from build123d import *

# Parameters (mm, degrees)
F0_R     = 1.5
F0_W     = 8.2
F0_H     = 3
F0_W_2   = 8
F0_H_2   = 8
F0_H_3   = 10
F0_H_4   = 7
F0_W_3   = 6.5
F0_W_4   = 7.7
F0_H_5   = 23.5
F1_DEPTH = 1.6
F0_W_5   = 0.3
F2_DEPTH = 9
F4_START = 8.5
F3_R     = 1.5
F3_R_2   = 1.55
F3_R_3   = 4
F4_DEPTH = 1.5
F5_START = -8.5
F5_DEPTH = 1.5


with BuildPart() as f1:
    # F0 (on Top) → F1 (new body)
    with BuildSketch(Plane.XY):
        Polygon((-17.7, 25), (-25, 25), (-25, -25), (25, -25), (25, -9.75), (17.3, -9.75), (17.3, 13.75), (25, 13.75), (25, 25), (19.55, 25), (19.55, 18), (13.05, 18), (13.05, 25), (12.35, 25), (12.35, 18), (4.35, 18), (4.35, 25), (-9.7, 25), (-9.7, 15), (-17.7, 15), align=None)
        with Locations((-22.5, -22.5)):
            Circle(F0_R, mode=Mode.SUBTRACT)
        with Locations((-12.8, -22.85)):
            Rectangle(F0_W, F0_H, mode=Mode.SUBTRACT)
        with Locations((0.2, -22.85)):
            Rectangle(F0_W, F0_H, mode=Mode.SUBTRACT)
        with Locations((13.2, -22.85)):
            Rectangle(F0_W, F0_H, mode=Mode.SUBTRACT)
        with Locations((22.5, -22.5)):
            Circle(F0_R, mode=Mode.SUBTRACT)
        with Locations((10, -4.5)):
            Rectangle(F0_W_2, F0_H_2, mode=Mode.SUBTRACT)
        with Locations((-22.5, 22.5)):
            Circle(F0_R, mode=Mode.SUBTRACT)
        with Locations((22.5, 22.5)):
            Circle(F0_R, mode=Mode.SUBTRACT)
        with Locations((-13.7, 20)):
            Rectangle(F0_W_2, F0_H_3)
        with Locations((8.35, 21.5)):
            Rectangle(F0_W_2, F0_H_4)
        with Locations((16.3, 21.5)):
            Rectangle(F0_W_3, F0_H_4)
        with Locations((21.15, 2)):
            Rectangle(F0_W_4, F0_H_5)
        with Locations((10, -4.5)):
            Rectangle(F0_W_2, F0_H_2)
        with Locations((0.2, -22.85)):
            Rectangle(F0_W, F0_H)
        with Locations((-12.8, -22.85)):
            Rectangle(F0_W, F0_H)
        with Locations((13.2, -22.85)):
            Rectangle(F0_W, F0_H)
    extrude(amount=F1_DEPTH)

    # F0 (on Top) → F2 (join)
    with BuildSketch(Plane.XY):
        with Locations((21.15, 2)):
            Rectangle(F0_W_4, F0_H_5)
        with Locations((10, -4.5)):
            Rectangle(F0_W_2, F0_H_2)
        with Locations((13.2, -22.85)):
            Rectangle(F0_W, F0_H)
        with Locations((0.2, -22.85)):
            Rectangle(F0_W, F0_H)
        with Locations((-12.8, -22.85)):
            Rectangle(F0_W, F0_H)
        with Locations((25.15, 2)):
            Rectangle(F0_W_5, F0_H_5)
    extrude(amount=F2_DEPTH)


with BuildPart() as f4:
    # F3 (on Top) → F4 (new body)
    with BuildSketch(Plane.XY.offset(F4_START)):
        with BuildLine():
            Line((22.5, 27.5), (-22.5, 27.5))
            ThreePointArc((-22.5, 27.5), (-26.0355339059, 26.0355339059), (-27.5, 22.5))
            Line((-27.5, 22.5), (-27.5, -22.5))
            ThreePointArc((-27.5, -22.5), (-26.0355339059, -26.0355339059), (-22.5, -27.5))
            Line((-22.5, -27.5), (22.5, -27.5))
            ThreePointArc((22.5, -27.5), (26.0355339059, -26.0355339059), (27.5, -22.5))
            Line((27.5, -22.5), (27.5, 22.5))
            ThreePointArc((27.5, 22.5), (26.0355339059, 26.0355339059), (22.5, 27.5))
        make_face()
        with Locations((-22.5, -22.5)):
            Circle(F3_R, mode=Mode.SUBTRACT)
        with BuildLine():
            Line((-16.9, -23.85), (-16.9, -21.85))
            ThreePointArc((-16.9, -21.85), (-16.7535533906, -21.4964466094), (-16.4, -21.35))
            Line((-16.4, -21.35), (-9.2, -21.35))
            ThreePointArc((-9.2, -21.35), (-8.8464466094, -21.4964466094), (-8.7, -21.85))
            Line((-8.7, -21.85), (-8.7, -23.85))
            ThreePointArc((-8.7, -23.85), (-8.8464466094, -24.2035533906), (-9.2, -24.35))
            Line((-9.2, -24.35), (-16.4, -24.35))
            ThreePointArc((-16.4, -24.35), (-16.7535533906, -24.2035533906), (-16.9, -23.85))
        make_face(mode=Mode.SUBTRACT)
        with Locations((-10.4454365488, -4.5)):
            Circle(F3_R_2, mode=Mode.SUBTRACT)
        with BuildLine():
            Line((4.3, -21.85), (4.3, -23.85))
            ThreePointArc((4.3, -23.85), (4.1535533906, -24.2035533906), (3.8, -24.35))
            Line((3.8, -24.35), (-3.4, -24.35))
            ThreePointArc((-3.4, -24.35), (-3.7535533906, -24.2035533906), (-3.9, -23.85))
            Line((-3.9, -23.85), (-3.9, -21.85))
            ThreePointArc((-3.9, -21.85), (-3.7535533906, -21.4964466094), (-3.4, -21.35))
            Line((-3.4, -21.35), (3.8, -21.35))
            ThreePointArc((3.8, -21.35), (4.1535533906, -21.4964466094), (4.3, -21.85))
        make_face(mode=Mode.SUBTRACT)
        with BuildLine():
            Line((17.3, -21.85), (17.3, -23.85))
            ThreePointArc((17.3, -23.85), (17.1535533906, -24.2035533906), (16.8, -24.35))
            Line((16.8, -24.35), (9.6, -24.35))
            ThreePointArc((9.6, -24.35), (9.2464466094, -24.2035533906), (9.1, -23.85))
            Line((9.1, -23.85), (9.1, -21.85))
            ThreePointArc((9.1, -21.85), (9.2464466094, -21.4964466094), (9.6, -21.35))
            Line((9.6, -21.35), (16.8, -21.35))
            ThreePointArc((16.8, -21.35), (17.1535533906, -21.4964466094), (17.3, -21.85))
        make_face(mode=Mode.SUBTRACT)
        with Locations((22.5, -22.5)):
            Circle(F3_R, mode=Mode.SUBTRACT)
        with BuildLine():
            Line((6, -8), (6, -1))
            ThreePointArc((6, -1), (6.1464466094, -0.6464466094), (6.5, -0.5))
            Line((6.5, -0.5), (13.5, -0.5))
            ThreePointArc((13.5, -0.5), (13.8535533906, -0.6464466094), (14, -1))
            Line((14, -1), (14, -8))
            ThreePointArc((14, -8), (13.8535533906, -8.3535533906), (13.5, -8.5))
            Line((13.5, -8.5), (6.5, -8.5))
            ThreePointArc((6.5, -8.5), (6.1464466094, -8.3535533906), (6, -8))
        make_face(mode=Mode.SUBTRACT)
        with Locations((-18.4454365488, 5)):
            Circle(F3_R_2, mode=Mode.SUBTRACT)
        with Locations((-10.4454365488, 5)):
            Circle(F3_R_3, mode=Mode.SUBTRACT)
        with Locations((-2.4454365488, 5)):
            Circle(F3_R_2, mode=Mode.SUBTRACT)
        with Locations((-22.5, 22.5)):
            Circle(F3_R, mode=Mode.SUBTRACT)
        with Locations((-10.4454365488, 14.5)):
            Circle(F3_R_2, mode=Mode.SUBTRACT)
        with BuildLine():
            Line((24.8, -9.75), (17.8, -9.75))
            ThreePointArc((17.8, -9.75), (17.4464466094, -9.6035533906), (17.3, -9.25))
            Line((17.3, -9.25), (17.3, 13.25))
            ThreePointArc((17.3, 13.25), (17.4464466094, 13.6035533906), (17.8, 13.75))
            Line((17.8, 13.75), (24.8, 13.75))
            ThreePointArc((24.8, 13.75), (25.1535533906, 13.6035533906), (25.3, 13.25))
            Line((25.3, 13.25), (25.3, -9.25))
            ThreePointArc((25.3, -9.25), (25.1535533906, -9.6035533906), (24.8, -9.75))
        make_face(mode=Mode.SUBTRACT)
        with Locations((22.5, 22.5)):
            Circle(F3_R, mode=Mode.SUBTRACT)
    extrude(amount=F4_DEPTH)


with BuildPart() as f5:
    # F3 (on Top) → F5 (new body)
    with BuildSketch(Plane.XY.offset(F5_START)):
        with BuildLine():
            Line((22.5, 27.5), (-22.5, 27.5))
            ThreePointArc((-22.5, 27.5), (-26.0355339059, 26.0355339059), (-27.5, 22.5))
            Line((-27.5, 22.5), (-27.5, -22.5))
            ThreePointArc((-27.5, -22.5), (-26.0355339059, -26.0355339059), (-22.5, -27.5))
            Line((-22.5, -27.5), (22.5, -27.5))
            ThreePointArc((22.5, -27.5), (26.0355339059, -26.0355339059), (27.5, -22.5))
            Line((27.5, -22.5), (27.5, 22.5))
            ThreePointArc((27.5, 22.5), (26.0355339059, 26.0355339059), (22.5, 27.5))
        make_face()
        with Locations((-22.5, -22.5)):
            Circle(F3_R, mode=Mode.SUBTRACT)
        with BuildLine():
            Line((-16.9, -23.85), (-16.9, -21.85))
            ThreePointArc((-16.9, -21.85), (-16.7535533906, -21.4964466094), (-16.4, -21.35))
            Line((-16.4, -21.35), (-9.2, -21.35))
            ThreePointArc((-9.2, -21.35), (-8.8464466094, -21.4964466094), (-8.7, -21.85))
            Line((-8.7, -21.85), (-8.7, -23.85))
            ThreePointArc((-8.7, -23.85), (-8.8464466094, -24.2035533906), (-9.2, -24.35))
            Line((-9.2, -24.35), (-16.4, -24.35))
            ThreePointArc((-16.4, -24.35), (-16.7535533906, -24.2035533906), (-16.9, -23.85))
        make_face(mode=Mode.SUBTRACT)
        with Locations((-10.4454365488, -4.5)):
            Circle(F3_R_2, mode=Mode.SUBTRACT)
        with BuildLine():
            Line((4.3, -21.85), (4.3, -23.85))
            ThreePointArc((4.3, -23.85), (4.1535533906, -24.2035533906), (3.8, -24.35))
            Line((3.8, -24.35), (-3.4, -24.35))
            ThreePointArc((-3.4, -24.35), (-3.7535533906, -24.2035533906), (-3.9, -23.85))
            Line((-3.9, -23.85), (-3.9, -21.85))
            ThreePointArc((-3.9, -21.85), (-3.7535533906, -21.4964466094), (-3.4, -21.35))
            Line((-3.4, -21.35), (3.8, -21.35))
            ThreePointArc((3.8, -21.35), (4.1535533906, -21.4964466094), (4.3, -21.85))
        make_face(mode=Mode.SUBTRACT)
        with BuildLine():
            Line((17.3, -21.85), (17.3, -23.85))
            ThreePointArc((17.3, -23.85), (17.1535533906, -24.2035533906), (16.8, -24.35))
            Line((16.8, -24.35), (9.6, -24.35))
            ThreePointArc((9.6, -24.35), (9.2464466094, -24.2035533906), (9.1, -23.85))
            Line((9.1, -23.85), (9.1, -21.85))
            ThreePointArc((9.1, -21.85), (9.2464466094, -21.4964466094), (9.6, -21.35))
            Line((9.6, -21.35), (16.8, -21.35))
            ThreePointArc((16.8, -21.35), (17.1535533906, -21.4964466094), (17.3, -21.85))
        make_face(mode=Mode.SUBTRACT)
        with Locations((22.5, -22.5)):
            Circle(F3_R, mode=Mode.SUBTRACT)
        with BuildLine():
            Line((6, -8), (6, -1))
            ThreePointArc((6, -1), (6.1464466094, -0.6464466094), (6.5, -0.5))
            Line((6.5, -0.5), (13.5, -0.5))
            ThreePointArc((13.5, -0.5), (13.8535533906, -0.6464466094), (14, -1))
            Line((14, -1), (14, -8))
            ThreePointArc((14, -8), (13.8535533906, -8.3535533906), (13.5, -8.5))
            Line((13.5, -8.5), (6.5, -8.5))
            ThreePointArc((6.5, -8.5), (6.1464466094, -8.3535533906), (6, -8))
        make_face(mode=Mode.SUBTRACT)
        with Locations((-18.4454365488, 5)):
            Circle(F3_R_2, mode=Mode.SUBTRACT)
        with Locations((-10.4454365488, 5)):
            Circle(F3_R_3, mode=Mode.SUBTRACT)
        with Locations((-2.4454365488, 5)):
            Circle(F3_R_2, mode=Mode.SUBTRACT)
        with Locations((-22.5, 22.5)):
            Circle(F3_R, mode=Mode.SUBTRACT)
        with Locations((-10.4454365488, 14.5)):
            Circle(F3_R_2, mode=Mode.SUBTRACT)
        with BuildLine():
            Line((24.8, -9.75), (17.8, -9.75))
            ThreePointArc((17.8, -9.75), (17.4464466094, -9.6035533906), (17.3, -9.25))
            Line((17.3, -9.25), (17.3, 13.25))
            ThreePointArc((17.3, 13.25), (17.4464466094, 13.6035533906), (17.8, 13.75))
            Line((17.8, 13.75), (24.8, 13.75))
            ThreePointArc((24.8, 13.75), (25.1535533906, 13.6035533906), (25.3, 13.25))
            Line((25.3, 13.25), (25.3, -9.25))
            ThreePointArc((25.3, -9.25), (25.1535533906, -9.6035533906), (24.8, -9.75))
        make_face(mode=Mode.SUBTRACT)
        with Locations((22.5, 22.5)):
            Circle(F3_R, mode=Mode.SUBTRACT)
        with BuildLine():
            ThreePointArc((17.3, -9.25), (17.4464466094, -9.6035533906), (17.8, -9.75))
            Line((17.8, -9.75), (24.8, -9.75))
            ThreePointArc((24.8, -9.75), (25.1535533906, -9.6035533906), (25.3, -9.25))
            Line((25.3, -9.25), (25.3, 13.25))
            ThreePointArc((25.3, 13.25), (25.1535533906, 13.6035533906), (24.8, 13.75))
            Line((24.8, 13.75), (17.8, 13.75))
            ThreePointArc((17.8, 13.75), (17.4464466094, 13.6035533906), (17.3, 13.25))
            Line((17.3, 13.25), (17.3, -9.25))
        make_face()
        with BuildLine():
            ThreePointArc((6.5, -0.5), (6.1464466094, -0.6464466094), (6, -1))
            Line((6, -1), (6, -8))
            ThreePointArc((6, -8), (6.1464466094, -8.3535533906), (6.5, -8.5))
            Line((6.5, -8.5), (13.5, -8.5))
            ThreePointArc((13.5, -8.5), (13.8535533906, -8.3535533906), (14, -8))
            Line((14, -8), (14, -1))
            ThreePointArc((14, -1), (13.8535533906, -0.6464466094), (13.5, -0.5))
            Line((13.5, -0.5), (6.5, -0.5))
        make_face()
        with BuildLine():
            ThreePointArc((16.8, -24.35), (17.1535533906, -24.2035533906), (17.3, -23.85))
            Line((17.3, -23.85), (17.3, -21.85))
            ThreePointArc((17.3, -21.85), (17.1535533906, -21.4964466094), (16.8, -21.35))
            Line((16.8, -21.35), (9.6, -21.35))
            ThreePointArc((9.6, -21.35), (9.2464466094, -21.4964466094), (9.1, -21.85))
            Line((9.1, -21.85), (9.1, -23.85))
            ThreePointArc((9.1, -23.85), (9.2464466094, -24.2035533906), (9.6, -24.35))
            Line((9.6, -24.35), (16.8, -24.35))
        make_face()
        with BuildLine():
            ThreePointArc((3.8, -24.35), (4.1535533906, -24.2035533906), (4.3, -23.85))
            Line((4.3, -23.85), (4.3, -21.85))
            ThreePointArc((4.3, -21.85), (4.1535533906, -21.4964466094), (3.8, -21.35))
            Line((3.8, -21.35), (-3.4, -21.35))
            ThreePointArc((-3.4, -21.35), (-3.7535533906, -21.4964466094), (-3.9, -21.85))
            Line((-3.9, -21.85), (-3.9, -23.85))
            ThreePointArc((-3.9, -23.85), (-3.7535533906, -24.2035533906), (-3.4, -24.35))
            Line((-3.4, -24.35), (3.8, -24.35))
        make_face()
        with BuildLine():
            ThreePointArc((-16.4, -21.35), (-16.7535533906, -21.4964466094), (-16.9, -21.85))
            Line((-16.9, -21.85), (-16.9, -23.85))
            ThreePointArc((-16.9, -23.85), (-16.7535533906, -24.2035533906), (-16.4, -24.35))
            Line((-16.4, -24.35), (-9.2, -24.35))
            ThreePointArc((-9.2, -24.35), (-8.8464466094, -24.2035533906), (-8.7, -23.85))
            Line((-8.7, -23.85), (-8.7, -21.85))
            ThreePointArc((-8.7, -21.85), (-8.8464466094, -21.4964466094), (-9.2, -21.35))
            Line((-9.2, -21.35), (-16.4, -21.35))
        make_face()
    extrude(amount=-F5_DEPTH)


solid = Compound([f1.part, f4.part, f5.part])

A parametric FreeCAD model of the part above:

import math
import FreeCAD as App
import Part
import Sketcher

V = App.Vector
Q = App.Units.Quantity


def add_polygon(sketch, points):
    """Adds a closed chain of lines whose ends are joined by coincident constraints."""
    first, n = sketch.GeometryCount, len(points)
    for a, b in zip(points, points[1:] + points[:1]):
        sketch.addGeometry(Part.LineSegment(App.Vector(*a, 0), App.Vector(*b, 0)), False)
    for i in range(n):
        sketch.addConstraint(Sketcher.Constraint("Coincident", first + i, 2, first + (i + 1) % n, 1))

doc = App.newDocument("Part")
params = doc.addObject("Spreadsheet::Sheet", "Params")
for row, (alias, value) in enumerate([
    ("sketch1_diameter", "3 mm"),
    ("sketch1_width", "50 mm"),
    ("pad1_length", "1.6 mm"),
    ("sketch2_width", "8 mm"),
    ("sketch2_height", "3 mm"),
    ("sketch2_width2", "8.2 mm"),
    ("sketch2_height2", "23.5 mm"),
    ("pad2_length", "9 mm"),
    ("sketch3_diameter", "3 mm"),
    ("sketch3_diameter2", "8 mm"),
    ("sketch3_radius", "5 mm"),
    ("sketch3_diameter3", "3.1 mm"),
    ("sketch3_radius2", "0.5 mm"),
    ("pad3_length", "1.5 mm"),
    ("sketch4_diameter", "3 mm"),
    ("sketch4_diameter2", "8 mm"),
    ("sketch4_radius", "5 mm"),
    ("sketch4_diameter3", "3.1 mm"),
    ("sketch4_width", "45 mm"),
    ("pad4_length", "1.5 mm"),
], start=1):
    params.set(f"A{row}", alias)
    params.set(f"B{row}", "=" + value)
    params.setAlias(f"B{row}", alias)

body = doc.addObject("PartDesign::Body", "Body")

sketch1 = body.newObject("Sketcher::SketchObject", "Sketch")
sketch1.AttachmentSupport = (doc.getObject("XY_Plane"), [""])
sketch1.MapMode = "FlatFace"
add_polygon(sketch1, [(-25, 25), (-25, -25), (25, -25), (25, 25)])
sketch1.addGeometry(Part.Circle(V(-22.5, -22.5, 0), V(0, 0, 1), 1.5), False)
sketch1.addGeometry(Part.Circle(V(22.5, -22.5, 0), V(0, 0, 1), 1.5), False)
sketch1.addGeometry(Part.Circle(V(-22.5, 22.5, 0), V(0, 0, 1), 1.5), False)
sketch1.addGeometry(Part.Circle(V(22.5, 22.5, 0), V(0, 0, 1), 1.5), False)
sketch1.addConstraint(Sketcher.Constraint("Vertical", 0))
sketch1.addConstraint(Sketcher.Constraint("Horizontal", 1))
sketch1.addConstraint(Sketcher.Constraint("Vertical", 2))
sketch1.addConstraint(Sketcher.Constraint("Horizontal", 3))
sketch1.addConstraint(Sketcher.Constraint("Equal", 4, 5))
sketch1.addConstraint(Sketcher.Constraint("Equal", 5, 6))
sketch1.addConstraint(Sketcher.Constraint("Equal", 6, 7))
sketch1.addConstraint(Sketcher.Constraint("Symmetric", 5, 3, 6, 3, -1, 1))
sketch1.addConstraint(Sketcher.Constraint("Symmetric", 4, 3, 7, 3, -1, 1))
sketch1.addConstraint(Sketcher.Constraint("Symmetric", 0, 2, 2, 2, -1, 1))
sketch1.addConstraint(Sketcher.Constraint("Symmetric", 4, 3, 5, 3, -2))
sketch1.addConstraint(Sketcher.Constraint("Equal", 3, 0))
sketch1.addConstraint(Sketcher.Constraint("Diameter", 4, Q("3 mm")))
sketch1.addConstraint(Sketcher.Constraint("DistanceX", 1, 1, 1, 2, Q("50 mm")))
sketch1.addConstraint(Sketcher.Constraint("DistanceX", 4, 3, 5, 3, Q("45 mm")))
sketch1.addConstraint(Sketcher.Constraint("DistanceY", 4, 3, 6, 3, Q("45 mm")))
sketch1.setExpression("Constraints[16]", "Params.sketch1_diameter")
sketch1.setExpression("Constraints[17]", "Params.sketch1_width")
pad1 = body.newObject("PartDesign::Pad", "Pad")
pad1.Profile = sketch1
pad1.setExpression("Length", "Params.pad1_length")

sketch2 = body.newObject("Sketcher::SketchObject", "Sketch001")
sketch2.AttachmentSupport = (doc.getObject("XY_Plane"), [""])
sketch2.MapMode = "FlatFace"
add_polygon(sketch2, [(17.3, 13.8), (17.3, -9.8), (25.3, -9.8), (25.3, 13.8)])
add_polygon(sketch2, [(6, -0.5), (6, -8.5), (14, -8.5), (14, -0.5)])
add_polygon(sketch2, [(9.1, -21.4), (9.1, -24.4), (17.3, -24.4), (17.3, -21.4)])
add_polygon(sketch2, [(-3.9, -21.4), (-3.9, -24.4), (4.3, -24.4), (4.3, -21.4)])
add_polygon(sketch2, [(-16.9, -21.4), (-16.9, -24.4), (-8.7, -24.4), (-8.7, -21.4)])
sketch2.addConstraint(Sketcher.Constraint("Vertical", 0))
sketch2.addConstraint(Sketcher.Constraint("Horizontal", 1))
sketch2.addConstraint(Sketcher.Constraint("Vertical", 2))
sketch2.addConstraint(Sketcher.Constraint("Horizontal", 3))
sketch2.addConstraint(Sketcher.Constraint("Vertical", 4))
sketch2.addConstraint(Sketcher.Constraint("Horizontal", 5))
sketch2.addConstraint(Sketcher.Constraint("Vertical", 6))
sketch2.addConstraint(Sketcher.Constraint("Horizontal", 7))
sketch2.addConstraint(Sketcher.Constraint("Vertical", 8))
sketch2.addConstraint(Sketcher.Constraint("Horizontal", 9))
sketch2.addConstraint(Sketcher.Constraint("Vertical", 10))
sketch2.addConstraint(Sketcher.Constraint("Horizontal", 11))
sketch2.addConstraint(Sketcher.Constraint("Vertical", 12))
sketch2.addConstraint(Sketcher.Constraint("Horizontal", 13))
sketch2.addConstraint(Sketcher.Constraint("Vertical", 14))
sketch2.addConstraint(Sketcher.Constraint("Horizontal", 15))
sketch2.addConstraint(Sketcher.Constraint("Vertical", 16))
sketch2.addConstraint(Sketcher.Constraint("Horizontal", 17))
sketch2.addConstraint(Sketcher.Constraint("Vertical", 18))
sketch2.addConstraint(Sketcher.Constraint("Horizontal", 19))
sketch2.addConstraint(Sketcher.Constraint("Horizontal", 9, 2, 12, 2))
sketch2.addConstraint(Sketcher.Constraint("Horizontal", 11, 2, 14, 2))
sketch2.addConstraint(Sketcher.Constraint("Horizontal", 13, 2, 16, 2))
sketch2.addConstraint(Sketcher.Constraint("Horizontal", 15, 2, 18, 2))
sketch2.addConstraint(Sketcher.Constraint("Vertical", 3, 2, 9, 2))
sketch2.addConstraint(Sketcher.Constraint("Equal", 3, 5))
sketch2.addConstraint(Sketcher.Constraint("Equal", 11, 13))
sketch2.addConstraint(Sketcher.Constraint("Equal", 15, 17))
sketch2.addConstraint(Sketcher.Constraint("Equal", 7, 4))
sketch2.addConstraint(Sketcher.Constraint("DistanceX", 1, 1, 1, 2, Q("8 mm")))
sketch2.addConstraint(Sketcher.Constraint("DistanceY", 8, 2, 8, 1, Q("3 mm")))
sketch2.addConstraint(Sketcher.Constraint("DistanceX", 9, 1, 9, 2, Q("8.2 mm")))
sketch2.addConstraint(Sketcher.Constraint("DistanceY", 0, 2, 0, 1, Q("23.5 mm")))
sketch2.addConstraint(Sketcher.Constraint("DistanceX", -1, 1, 4, 2, Q("6 mm")))
sketch2.addConstraint(Sketcher.Constraint("DistanceX", 12, 2, 8, 2, Q("13 mm")))
sketch2.addConstraint(Sketcher.Constraint("DistanceX", 16, 2, 12, 2, Q("13 mm")))
sketch2.addConstraint(Sketcher.Constraint("DistanceX", -1, 1, 0, 2, Q("17.3 mm")))
sketch2.addConstraint(Sketcher.Constraint("DistanceY", 4, 2, -1, 1, Q("8.5 mm")))
sketch2.addConstraint(Sketcher.Constraint("DistanceY", 8, 2, 0, 2, Q("14.6 mm")))
sketch2.addConstraint(Sketcher.Constraint("DistanceY", 0, 2, -1, 1, Q("9.75 mm")))
sketch2.setExpression("Constraints[49]", "Params.sketch2_width")
sketch2.setExpression("Constraints[50]", "Params.sketch2_height")
sketch2.setExpression("Constraints[51]", "Params.sketch2_width2")
sketch2.setExpression("Constraints[52]", "Params.sketch2_height2")
pad2 = body.newObject("PartDesign::Pad", "Pad001")
pad2.Profile = sketch2
pad2.setExpression("Length", "Params.pad2_length")
body2 = doc.addObject("PartDesign::Body", "Body001")

sketch3 = body2.newObject("Sketcher::SketchObject", "Sketch002")
sketch3.AttachmentSupport = (doc.getObject("XY_Plane001"), [""])
sketch3.MapMode = "FlatFace"
sketch3.AttachmentOffset = App.Placement(V(0, 0, 8.5), App.Rotation())
sketch3.addGeometry(Part.LineSegment(V(22.5, 27.5, 0), V(-22.5, 27.5, 0)), False)
sketch3.addGeometry(Part.ArcOfCircle(Part.Circle(V(-22.5, 22.5, 0), V(0, 0, 1), 5), math.radians(90), math.radians(180)), False)
sketch3.addGeometry(Part.LineSegment(V(-27.5, 22.5, 0), V(-27.5, -22.5, 0)), False)
sketch3.addGeometry(Part.ArcOfCircle(Part.Circle(V(-22.5, -22.5, 0), V(0, 0, 1), 5), math.radians(180), math.radians(270)), False)
sketch3.addGeometry(Part.LineSegment(V(-22.5, -27.5, 0), V(22.5, -27.5, 0)), False)
sketch3.addGeometry(Part.ArcOfCircle(Part.Circle(V(22.5, -22.5, 0), V(0, 0, 1), 5), math.radians(-90), math.radians(0)), False)
sketch3.addGeometry(Part.LineSegment(V(27.5, -22.5, 0), V(27.5, 22.5, 0)), False)
sketch3.addGeometry(Part.ArcOfCircle(Part.Circle(V(22.5, 22.5, 0), V(0, 0, 1), 5), math.radians(0), math.radians(90)), False)
sketch3.addGeometry(Part.Circle(V(-22.5, -22.5, 0), V(0, 0, 1), 1.5), False)
sketch3.addGeometry(Part.ArcOfCircle(Part.Circle(V(-16.4, -23.9, 0), V(0, 0, 1), 0.5), math.radians(180), math.radians(270)), False)
sketch3.addGeometry(Part.LineSegment(V(-16.9, -23.9, 0), V(-16.9, -21.9, 0)), False)
sketch3.addGeometry(Part.ArcOfCircle(Part.Circle(V(-16.4, -21.9, 0), V(0, 0, 1), 0.5), math.radians(90), math.radians(180)), False)
sketch3.addGeometry(Part.LineSegment(V(-16.4, -21.4, 0), V(-9.2, -21.4, 0)), False)
sketch3.addGeometry(Part.ArcOfCircle(Part.Circle(V(-9.2, -21.9, 0), V(0, 0, 1), 0.5), math.radians(0), math.radians(90)), False)
sketch3.addGeometry(Part.LineSegment(V(-8.7, -21.9, 0), V(-8.7, -23.9, 0)), False)
sketch3.addGeometry(Part.ArcOfCircle(Part.Circle(V(-9.2, -23.9, 0), V(0, 0, 1), 0.5), math.radians(-90), math.radians(0)), False)
sketch3.addGeometry(Part.LineSegment(V(-9.2, -24.4, 0), V(-16.4, -24.4, 0)), False)
sketch3.addGeometry(Part.ArcOfCircle(Part.Circle(V(3.8, -21.9, 0), V(0, 0, 1), 0.5), math.radians(0), math.radians(90)), False)
sketch3.addGeometry(Part.LineSegment(V(4.3, -21.9, 0), V(4.3, -23.9, 0)), False)
sketch3.addGeometry(Part.ArcOfCircle(Part.Circle(V(3.8, -23.9, 0), V(0, 0, 1), 0.5), math.radians(-90), math.radians(0)), False)
sketch3.addGeometry(Part.LineSegment(V(3.8, -24.4, 0), V(-3.4, -24.4, 0)), False)
sketch3.addGeometry(Part.ArcOfCircle(Part.Circle(V(-3.4, -23.9, 0), V(0, 0, 1), 0.5), math.radians(180), math.radians(270)), False)
sketch3.addGeometry(Part.LineSegment(V(-3.9, -23.9, 0), V(-3.9, -21.9, 0)), False)
sketch3.addGeometry(Part.ArcOfCircle(Part.Circle(V(-3.4, -21.9, 0), V(0, 0, 1), 0.5), math.radians(90), math.radians(180)), False)
sketch3.addGeometry(Part.LineSegment(V(-3.4, -21.4, 0), V(3.8, -21.4, 0)), False)
sketch3.addGeometry(Part.Circle(V(-10.4, -4.5, 0), V(0, 0, 1), 1.6), False)
sketch3.addGeometry(Part.ArcOfCircle(Part.Circle(V(16.8, -21.9, 0), V(0, 0, 1), 0.5), math.radians(0), math.radians(90)), False)
sketch3.addGeometry(Part.LineSegment(V(17.3, -21.9, 0), V(17.3, -23.9, 0)), False)
sketch3.addGeometry(Part.ArcOfCircle(Part.Circle(V(16.8, -23.9, 0), V(0, 0, 1), 0.5), math.radians(-90), math.radians(0)), False)
sketch3.addGeometry(Part.LineSegment(V(16.8, -24.4, 0), V(9.6, -24.4, 0)), False)
sketch3.addGeometry(Part.ArcOfCircle(Part.Circle(V(9.6, -23.9, 0), V(0, 0, 1), 0.5), math.radians(180), math.radians(270)), False)
sketch3.addGeometry(Part.LineSegment(V(9.1, -23.9, 0), V(9.1, -21.9, 0)), False)
sketch3.addGeometry(Part.ArcOfCircle(Part.Circle(V(9.6, -21.9, 0), V(0, 0, 1), 0.5), math.radians(90), math.radians(180)), False)
sketch3.addGeometry(Part.LineSegment(V(9.6, -21.4, 0), V(16.8, -21.4, 0)), False)
sketch3.addGeometry(Part.Circle(V(22.5, -22.5, 0), V(0, 0, 1), 1.5), False)
sketch3.addGeometry(Part.ArcOfCircle(Part.Circle(V(6.5, -8, 0), V(0, 0, 1), 0.5), math.radians(180), math.radians(270)), False)
sketch3.addGeometry(Part.LineSegment(V(6, -8, 0), V(6, -1, 0)), False)
sketch3.addGeometry(Part.ArcOfCircle(Part.Circle(V(6.5, -1, 0), V(0, 0, 1), 0.5), math.radians(90), math.radians(180)), False)
sketch3.addGeometry(Part.LineSegment(V(6.5, -0.5, 0), V(13.5, -0.5, 0)), False)
sketch3.addGeometry(Part.ArcOfCircle(Part.Circle(V(13.5, -1, 0), V(0, 0, 1), 0.5), math.radians(0), math.radians(90)), False)
sketch3.addGeometry(Part.LineSegment(V(14, -1, 0), V(14, -8, 0)), False)
sketch3.addGeometry(Part.ArcOfCircle(Part.Circle(V(13.5, -8, 0), V(0, 0, 1), 0.5), math.radians(-90), math.radians(0)), False)
sketch3.addGeometry(Part.LineSegment(V(13.5, -8.5, 0), V(6.5, -8.5, 0)), False)
sketch3.addGeometry(Part.Circle(V(-18.4, 5, 0), V(0, 0, 1), 1.6), False)
sketch3.addGeometry(Part.Circle(V(-10.4, 5, 0), V(0, 0, 1), 4), False)
sketch3.addGeometry(Part.Circle(V(-2.4, 5, 0), V(0, 0, 1), 1.6), False)
sketch3.addGeometry(Part.Circle(V(-22.5, 22.5, 0), V(0, 0, 1), 1.5), False)
sketch3.addGeometry(Part.Circle(V(-10.4, 14.5, 0), V(0, 0, 1), 1.6), False)
sketch3.addGeometry(Part.ArcOfCircle(Part.Circle(V(24.8, -9.2, 0), V(0, 0, 1), 0.5), math.radians(-90), math.radians(0)), False)
sketch3.addGeometry(Part.LineSegment(V(24.8, -9.8, 0), V(17.8, -9.8, 0)), False)
sketch3.addGeometry(Part.ArcOfCircle(Part.Circle(V(17.8, -9.2, 0), V(0, 0, 1), 0.5), math.radians(180), math.radians(270)), False)
sketch3.addGeometry(Part.LineSegment(V(17.3, -9.2, 0), V(17.3, 13.2, 0)), False)
sketch3.addGeometry(Part.ArcOfCircle(Part.Circle(V(17.8, 13.2, 0), V(0, 0, 1), 0.5), math.radians(90), math.radians(180)), False)
sketch3.addGeometry(Part.LineSegment(V(17.8, 13.8, 0), V(24.8, 13.8, 0)), False)
sketch3.addGeometry(Part.ArcOfCircle(Part.Circle(V(24.8, 13.2, 0), V(0, 0, 1), 0.5), math.radians(0), math.radians(90)), False)
sketch3.addGeometry(Part.LineSegment(V(25.3, 13.2, 0), V(25.3, -9.2, 0)), False)
sketch3.addGeometry(Part.Circle(V(22.5, 22.5, 0), V(0, 0, 1), 1.5), False)
sketch3.addConstraint(Sketcher.Constraint("Tangent", 0, 2, 1, 1))
sketch3.addConstraint(Sketcher.Constraint("Tangent", 1, 2, 2, 1))
sketch3.addConstraint(Sketcher.Constraint("Tangent", 2, 2, 3, 1))
sketch3.addConstraint(Sketcher.Constraint("Tangent", 3, 2, 4, 1))
sketch3.addConstraint(Sketcher.Constraint("Tangent", 4, 2, 5, 1))
sketch3.addConstraint(Sketcher.Constraint("Tangent", 5, 2, 6, 1))
sketch3.addConstraint(Sketcher.Constraint("Tangent", 6, 2, 7, 1))
sketch3.addConstraint(Sketcher.Constraint("Tangent", 7, 2, 0, 1))
sketch3.addConstraint(Sketcher.Constraint("Tangent", 9, 1, 10, 1))
sketch3.addConstraint(Sketcher.Constraint("Tangent", 10, 2, 11, 2))
sketch3.addConstraint(Sketcher.Constraint("Tangent", 11, 1, 12, 1))
sketch3.addConstraint(Sketcher.Constraint("Tangent", 12, 2, 13, 2))
sketch3.addConstraint(Sketcher.Constraint("Tangent", 13, 1, 14, 1))
sketch3.addConstraint(Sketcher.Constraint("Tangent", 14, 2, 15, 2))
sketch3.addConstraint(Sketcher.Constraint("Tangent", 15, 1, 16, 1))
sketch3.addConstraint(Sketcher.Constraint("Tangent", 16, 2, 9, 2))
sketch3.addConstraint(Sketcher.Constraint("Tangent", 17, 1, 18, 1))
sketch3.addConstraint(Sketcher.Constraint("Tangent", 18, 2, 19, 2))
sketch3.addConstraint(Sketcher.Constraint("Tangent", 19, 1, 20, 1))
sketch3.addConstraint(Sketcher.Constraint("Tangent", 20, 2, 21, 2))
sketch3.addConstraint(Sketcher.Constraint("Tangent", 21, 1, 22, 1))
sketch3.addConstraint(Sketcher.Constraint("Tangent", 22, 2, 23, 2))
sketch3.addConstraint(Sketcher.Constraint("Tangent", 23, 1, 24, 1))
sketch3.addConstraint(Sketcher.Constraint("Tangent", 24, 2, 17, 2))
sketch3.addConstraint(Sketcher.Constraint("Tangent", 26, 1, 27, 1))
sketch3.addConstraint(Sketcher.Constraint("Tangent", 27, 2, 28, 2))
sketch3.addConstraint(Sketcher.Constraint("Tangent", 28, 1, 29, 1))
sketch3.addConstraint(Sketcher.Constraint("Tangent", 29, 2, 30, 2))
sketch3.addConstraint(Sketcher.Constraint("Tangent", 30, 1, 31, 1))
sketch3.addConstraint(Sketcher.Constraint("Tangent", 31, 2, 32, 2))
sketch3.addConstraint(Sketcher.Constraint("Tangent", 32, 1, 33, 1))
sketch3.addConstraint(Sketcher.Constraint("Tangent", 33, 2, 26, 2))
sketch3.addConstraint(Sketcher.Constraint("Tangent", 35, 1, 36, 1))
sketch3.addConstraint(Sketcher.Constraint("Tangent", 36, 2, 37, 2))
sketch3.addConstraint(Sketcher.Constraint("Tangent", 37, 1, 38, 1))
sketch3.addConstraint(Sketcher.Constraint("Tangent", 38, 2, 39, 2))
sketch3.addConstraint(Sketcher.Constraint("Tangent", 39, 1, 40, 1))
sketch3.addConstraint(Sketcher.Constraint("Tangent", 40, 2, 41, 2))
sketch3.addConstraint(Sketcher.Constraint("Tangent", 41, 1, 42, 1))
sketch3.addConstraint(Sketcher.Constraint("Tangent", 42, 2, 35, 2))
sketch3.addConstraint(Sketcher.Constraint("Tangent", 48, 1, 49, 1))
sketch3.addConstraint(Sketcher.Constraint("Tangent", 49, 2, 50, 2))
sketch3.addConstraint(Sketcher.Constraint("Tangent", 50, 1, 51, 1))
sketch3.addConstraint(Sketcher.Constraint("Tangent", 51, 2, 52, 2))
sketch3.addConstraint(Sketcher.Constraint("Tangent", 52, 1, 53, 1))
sketch3.addConstraint(Sketcher.Constraint("Tangent", 53, 2, 54, 2))
sketch3.addConstraint(Sketcher.Constraint("Tangent", 54, 1, 55, 1))
sketch3.addConstraint(Sketcher.Constraint("Tangent", 55, 2, 48, 2))
sketch3.addConstraint(Sketcher.Constraint("Horizontal", 0))
sketch3.addConstraint(Sketcher.Constraint("Vertical", 2))
sketch3.addConstraint(Sketcher.Constraint("Horizontal", 4))
sketch3.addConstraint(Sketcher.Constraint("Vertical", 6))
sketch3.addConstraint(Sketcher.Constraint("Vertical", 10))
sketch3.addConstraint(Sketcher.Constraint("Horizontal", 12))
sketch3.addConstraint(Sketcher.Constraint("Vertical", 14))
sketch3.addConstraint(Sketcher.Constraint("Horizontal", 16))
sketch3.addConstraint(Sketcher.Constraint("Vertical", 18))
sketch3.addConstraint(Sketcher.Constraint("Horizontal", 20))
sketch3.addConstraint(Sketcher.Constraint("Vertical", 22))
sketch3.addConstraint(Sketcher.Constraint("Horizontal", 24))
sketch3.addConstraint(Sketcher.Constraint("Vertical", 27))
sketch3.addConstraint(Sketcher.Constraint("Horizontal", 29))
sketch3.addConstraint(Sketcher.Constraint("Vertical", 31))
sketch3.addConstraint(Sketcher.Constraint("Horizontal", 33))
sketch3.addConstraint(Sketcher.Constraint("Vertical", 36))
sketch3.addConstraint(Sketcher.Constraint("Horizontal", 38))
sketch3.addConstraint(Sketcher.Constraint("Vertical", 40))
sketch3.addConstraint(Sketcher.Constraint("Horizontal", 42))
sketch3.addConstraint(Sketcher.Constraint("Horizontal", 49))
sketch3.addConstraint(Sketcher.Constraint("Vertical", 51))
sketch3.addConstraint(Sketcher.Constraint("Horizontal", 53))
sketch3.addConstraint(Sketcher.Constraint("Vertical", 55))
sketch3.addConstraint(Sketcher.Constraint("Coincident", 8, 3, 3, 3))
sketch3.addConstraint(Sketcher.Constraint("Coincident", 34, 3, 5, 3))
sketch3.addConstraint(Sketcher.Constraint("Coincident", 46, 3, 1, 3))
sketch3.addConstraint(Sketcher.Constraint("Coincident", 56, 3, 7, 3))
sketch3.addConstraint(Sketcher.Constraint("Equal", 1, 3))
sketch3.addConstraint(Sketcher.Constraint("Equal", 3, 5))
sketch3.addConstraint(Sketcher.Constraint("Equal", 5, 7))
sketch3.addConstraint(Sketcher.Constraint("Equal", 9, 11))
sketch3.addConstraint(Sketcher.Constraint("Equal", 11, 13))
sketch3.addConstraint(Sketcher.Constraint("Equal", 13, 15))
sketch3.addConstraint(Sketcher.Constraint("Equal", 15, 17))
sketch3.addConstraint(Sketcher.Constraint("Equal", 17, 19))
sketch3.addConstraint(Sketcher.Constraint("Equal", 19, 21))
sketch3.addConstraint(Sketcher.Constraint("Equal", 21, 23))
sketch3.addConstraint(Sketcher.Constraint("Equal", 23, 26))
sketch3.addConstraint(Sketcher.Constraint("Equal", 26, 28))
sketch3.addConstraint(Sketcher.Constraint("Equal", 28, 30))
sketch3.addConstraint(Sketcher.Constraint("Equal", 30, 32))
sketch3.addConstraint(Sketcher.Constraint("Equal", 8, 34))
sketch3.addConstraint(Sketcher.Constraint("Equal", 32, 35))
sketch3.addConstraint(Sketcher.Constraint("Equal", 35, 37))
sketch3.addConstraint(Sketcher.Constraint("Equal", 37, 39))
sketch3.addConstraint(Sketcher.Constraint("Equal", 39, 41))
sketch3.addConstraint(Sketcher.Constraint("Equal", 25, 43))
sketch3.addConstraint(Sketcher.Constraint("Equal", 43, 45))
sketch3.addConstraint(Sketcher.Constraint("Equal", 34, 46))
sketch3.addConstraint(Sketcher.Constraint("Equal", 45, 47))
sketch3.addConstraint(Sketcher.Constraint("Equal", 41, 48))
sketch3.addConstraint(Sketcher.Constraint("Equal", 48, 50))
sketch3.addConstraint(Sketcher.Constraint("Equal", 50, 52))
sketch3.addConstraint(Sketcher.Constraint("Equal", 52, 54))
sketch3.addConstraint(Sketcher.Constraint("Equal", 46, 56))
sketch3.addConstraint(Sketcher.Constraint("Symmetric", 1, 3, 5, 3, -1, 1))
sketch3.addConstraint(Sketcher.Constraint("Horizontal", 13, 3, 17, 3))
sketch3.addConstraint(Sketcher.Constraint("Horizontal", 15, 3, 19, 3))
sketch3.addConstraint(Sketcher.Constraint("Horizontal", 23, 3, 26, 3))
sketch3.addConstraint(Sketcher.Constraint("Horizontal", 21, 3, 28, 3))
sketch3.addConstraint(Sketcher.Constraint("Horizontal", 43, 3, 44, 3))
sketch3.addConstraint(Sketcher.Constraint("Horizontal", 44, 3, 45, 3))
sketch3.addConstraint(Sketcher.Constraint("Vertical", 25, 3, 44, 3))
sketch3.addConstraint(Sketcher.Constraint("Vertical", 44, 3, 47, 3))
sketch3.addConstraint(Sketcher.Constraint("Vertical", 27, 2, 50, 1))
sketch3.addConstraint(Sketcher.Constraint("Equal", 16, 20))
sketch3.addConstraint(Sketcher.Constraint("Equal", 24, 29))
sketch3.addConstraint(Sketcher.Constraint("Equal", 42, 49))
sketch3.addConstraint(Sketcher.Constraint("Equal", 4, 2))
sketch3.addConstraint(Sketcher.Constraint("Equal", 53, 36))
sketch3.addConstraint(Sketcher.Constraint("Diameter", 8, Q("3 mm")))
sketch3.addConstraint(Sketcher.Constraint("Diameter", 44, Q("8 mm")))
sketch3.addConstraint(Sketcher.Constraint("Radius", 1, Q("5 mm")))
sketch3.addConstraint(Sketcher.Constraint("Diameter", 25, Q("3.1 mm")))
sketch3.addConstraint(Sketcher.Constraint("Radius", 9, Q("0.5 mm")))
sketch3.addConstraint(Sketcher.Constraint("DistanceX", 0, 2, 0, 1, Q("45 mm")))
sketch3.addConstraint(Sketcher.Constraint("DistanceX", 38, 1, 38, 2, Q("7 mm")))
sketch3.addConstraint(Sketcher.Constraint("DistanceY", 10, 1, 10, 2, Q("2 mm")))
sketch3.addConstraint(Sketcher.Constraint("DistanceX", 12, 1, 12, 2, Q("7.2 mm")))
sketch3.addConstraint(Sketcher.Constraint("DistanceY", 51, 1, 51, 2, Q("22.5 mm")))
sketch3.addConstraint(Sketcher.Constraint("DistanceY", 35, 3, -1, 1, Q("8 mm")))
sketch3.addConstraint(Sketcher.Constraint("DistanceY", -1, 1, 43, 3, Q("5 mm")))
sketch3.addConstraint(Sketcher.Constraint("DistanceX", -1, 1, 35, 1, Q("6 mm")))
sketch3.addConstraint(Sketcher.Constraint("DistanceX", 9, 3, -1, 1, Q("16.4 mm")))
sketch3.addConstraint(Sketcher.Constraint("DistanceX", -1, 1, 17, 3, Q("3.8 mm")))
sketch3.addConstraint(Sketcher.Constraint("DistanceY", 25, 3, -1, 1, Q("4.5 mm")))
sketch3.addConstraint(Sketcher.Constraint("DistanceX", -1, 1, 26, 3, Q("16.8 mm")))
sketch3.addConstraint(Sketcher.Constraint("DistanceY", -1, 1, 47, 3, Q("14.5 mm")))
sketch3.addConstraint(Sketcher.Constraint("DistanceY", 9, 3, -1, 1, Q("23.85 mm")))
sketch3.addConstraint(Sketcher.Constraint("DistanceY", 48, 3, -1, 1, Q("9.25 mm")))
sketch3.addConstraint(Sketcher.Constraint("DistanceX", 25, 3, -1, 1, Q("10.445437 mm")))
sketch3.addConstraint(Sketcher.Constraint("DistanceX", 43, 3, -1, 1, Q("18.445437 mm")))
sketch3.addConstraint(Sketcher.Constraint("DistanceX", 45, 3, -1, 1, Q("2.445437 mm")))
sketch3.setExpression("Constraints[119]", "Params.sketch3_diameter")
sketch3.setExpression("Constraints[120]", "Params.sketch3_diameter2")
sketch3.setExpression("Constraints[121]", "Params.sketch3_radius")
sketch3.setExpression("Constraints[122]", "Params.sketch3_diameter3")
sketch3.setExpression("Constraints[123]", "Params.sketch3_radius2")
pad3 = body2.newObject("PartDesign::Pad", "Pad002")
pad3.Profile = sketch3
pad3.setExpression("Length", "Params.pad3_length")
body3 = doc.addObject("PartDesign::Body", "Body002")

sketch4 = body3.newObject("Sketcher::SketchObject", "Sketch003")
sketch4.AttachmentSupport = (doc.getObject("XY_Plane002"), [""])
sketch4.MapMode = "FlatFace"
sketch4.AttachmentOffset = App.Placement(V(0, 0, -8.5), App.Rotation())
sketch4.addGeometry(Part.LineSegment(V(22.5, 27.5, 0), V(-22.5, 27.5, 0)), False)
sketch4.addGeometry(Part.ArcOfCircle(Part.Circle(V(-22.5, 22.5, 0), V(0, 0, 1), 5), math.radians(90), math.radians(180)), False)
sketch4.addGeometry(Part.LineSegment(V(-27.5, 22.5, 0), V(-27.5, -22.5, 0)), False)
sketch4.addGeometry(Part.ArcOfCircle(Part.Circle(V(-22.5, -22.5, 0), V(0, 0, 1), 5), math.radians(180), math.radians(270)), False)
sketch4.addGeometry(Part.LineSegment(V(-22.5, -27.5, 0), V(22.5, -27.5, 0)), False)
sketch4.addGeometry(Part.ArcOfCircle(Part.Circle(V(22.5, -22.5, 0), V(0, 0, 1), 5), math.radians(-90), math.radians(0)), False)
sketch4.addGeometry(Part.LineSegment(V(27.5, -22.5, 0), V(27.5, 22.5, 0)), False)
sketch4.addGeometry(Part.ArcOfCircle(Part.Circle(V(22.5, 22.5, 0), V(0, 0, 1), 5), math.radians(0), math.radians(90)), False)
sketch4.addGeometry(Part.Circle(V(-22.5, -22.5, 0), V(0, 0, 1), 1.5), False)
sketch4.addGeometry(Part.Circle(V(-10.4, -4.5, 0), V(0, 0, 1), 1.6), False)
sketch4.addGeometry(Part.Circle(V(22.5, -22.5, 0), V(0, 0, 1), 1.5), False)
sketch4.addGeometry(Part.Circle(V(-18.4, 5, 0), V(0, 0, 1), 1.6), False)
sketch4.addGeometry(Part.Circle(V(-10.4, 5, 0), V(0, 0, 1), 4), False)
sketch4.addGeometry(Part.Circle(V(-2.4, 5, 0), V(0, 0, 1), 1.6), False)
sketch4.addGeometry(Part.Circle(V(-22.5, 22.5, 0), V(0, 0, 1), 1.5), False)
sketch4.addGeometry(Part.Circle(V(-10.4, 14.5, 0), V(0, 0, 1), 1.6), False)
sketch4.addGeometry(Part.Circle(V(22.5, 22.5, 0), V(0, 0, 1), 1.5), False)
sketch4.addConstraint(Sketcher.Constraint("Tangent", 0, 2, 1, 1))
sketch4.addConstraint(Sketcher.Constraint("Tangent", 1, 2, 2, 1))
sketch4.addConstraint(Sketcher.Constraint("Tangent", 2, 2, 3, 1))
sketch4.addConstraint(Sketcher.Constraint("Tangent", 3, 2, 4, 1))
sketch4.addConstraint(Sketcher.Constraint("Tangent", 4, 2, 5, 1))
sketch4.addConstraint(Sketcher.Constraint("Tangent", 5, 2, 6, 1))
sketch4.addConstraint(Sketcher.Constraint("Tangent", 6, 2, 7, 1))
sketch4.addConstraint(Sketcher.Constraint("Tangent", 7, 2, 0, 1))
sketch4.addConstraint(Sketcher.Constraint("Horizontal", 0))
sketch4.addConstraint(Sketcher.Constraint("Vertical", 2))
sketch4.addConstraint(Sketcher.Constraint("Horizontal", 4))
sketch4.addConstraint(Sketcher.Constraint("Vertical", 6))
sketch4.addConstraint(Sketcher.Constraint("Coincident", 8, 3, 3, 3))
sketch4.addConstraint(Sketcher.Constraint("Coincident", 10, 3, 5, 3))
sketch4.addConstraint(Sketcher.Constraint("Coincident", 14, 3, 1, 3))
sketch4.addConstraint(Sketcher.Constraint("Coincident", 16, 3, 7, 3))
sketch4.addConstraint(Sketcher.Constraint("Equal", 1, 3))
sketch4.addConstraint(Sketcher.Constraint("Equal", 3, 5))
sketch4.addConstraint(Sketcher.Constraint("Equal", 5, 7))
sketch4.addConstraint(Sketcher.Constraint("Equal", 8, 10))
sketch4.addConstraint(Sketcher.Constraint("Equal", 9, 11))
sketch4.addConstraint(Sketcher.Constraint("Equal", 11, 13))
sketch4.addConstraint(Sketcher.Constraint("Equal", 10, 14))
sketch4.addConstraint(Sketcher.Constraint("Equal", 13, 15))
sketch4.addConstraint(Sketcher.Constraint("Equal", 14, 16))
sketch4.addConstraint(Sketcher.Constraint("Symmetric", 1, 3, 5, 3, -1, 1))
sketch4.addConstraint(Sketcher.Constraint("Horizontal", 11, 3, 12, 3))
sketch4.addConstraint(Sketcher.Constraint("Horizontal", 12, 3, 13, 3))
sketch4.addConstraint(Sketcher.Constraint("Vertical", 9, 3, 12, 3))
sketch4.addConstraint(Sketcher.Constraint("Vertical", 12, 3, 15, 3))
sketch4.addConstraint(Sketcher.Constraint("Equal", 4, 2))
sketch4.addConstraint(Sketcher.Constraint("Diameter", 8, Q("3 mm")))
sketch4.addConstraint(Sketcher.Constraint("Diameter", 12, Q("8 mm")))
sketch4.addConstraint(Sketcher.Constraint("Radius", 1, Q("5 mm")))
sketch4.addConstraint(Sketcher.Constraint("Diameter", 9, Q("3.1 mm")))
sketch4.addConstraint(Sketcher.Constraint("DistanceX", 0, 2, 0, 1, Q("45 mm")))
sketch4.addConstraint(Sketcher.Constraint("DistanceY", -1, 1, 11, 3, Q("5 mm")))
sketch4.addConstraint(Sketcher.Constraint("DistanceY", 3, 3, 9, 3, Q("18 mm")))
sketch4.addConstraint(Sketcher.Constraint("DistanceX", 11, 3, 9, 3, Q("8 mm")))
sketch4.addConstraint(Sketcher.Constraint("DistanceX", 12, 3, 13, 3, Q("8 mm")))
sketch4.addConstraint(Sketcher.Constraint("DistanceY", 15, 3, 1, 3, Q("8 mm")))
sketch4.addConstraint(Sketcher.Constraint("DistanceX", 9, 3, -1, 1, Q("10.445437 mm")))
sketch4.setExpression("Constraints[31]", "Params.sketch4_diameter")
sketch4.setExpression("Constraints[32]", "Params.sketch4_diameter2")
sketch4.setExpression("Constraints[33]", "Params.sketch4_radius")
sketch4.setExpression("Constraints[34]", "Params.sketch4_diameter3")
sketch4.setExpression("Constraints[35]", "Params.sketch4_width")
pad4 = body3.newObject("PartDesign::Pad", "Pad003")
pad4.Profile = sketch4
pad4.setExpression("Length", "Params.pad4_length")
pad4.Reversed = True

doc.recompute()
